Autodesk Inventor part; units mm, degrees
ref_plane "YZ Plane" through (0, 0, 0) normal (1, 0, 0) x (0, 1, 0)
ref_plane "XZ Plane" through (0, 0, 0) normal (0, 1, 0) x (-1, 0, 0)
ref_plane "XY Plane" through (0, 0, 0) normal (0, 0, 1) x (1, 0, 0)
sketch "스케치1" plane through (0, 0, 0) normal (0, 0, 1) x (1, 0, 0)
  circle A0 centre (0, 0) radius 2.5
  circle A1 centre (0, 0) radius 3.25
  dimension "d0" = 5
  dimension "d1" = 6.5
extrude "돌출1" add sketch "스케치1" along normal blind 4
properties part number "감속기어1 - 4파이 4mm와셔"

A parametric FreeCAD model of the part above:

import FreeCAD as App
import Part
import Sketcher
from FreeCAD import Vector
Q = App.Units.Quantity

doc = App.newDocument("Part")
body = doc.addObject("PartDesign::Body", "Body")

# Sketch on XY plane
sketch1 = doc.addObject("Sketcher::SketchObject", "Sketch")
body.addObject(sketch1)
sketch1.AttachmentSupport = (doc.XY_Plane, [""])
sketch1.MapMode = "FlatFace"
sketch1.addGeometry(Part.Circle(Vector(0, 0, 0), Vector(0, 0, 1), 3.25), False)
sketch1.addGeometry(Part.Circle(Vector(0, 0, 0), Vector(0, 0, 1), 2.5), False)
sketch1.addConstraint(Sketcher.Constraint("Coincident", 0, 3, -1, 1))
sketch1.addConstraint(Sketcher.Constraint("Coincident", 1, 3, -1, 1))
sketch1.addConstraint(Sketcher.Constraint("Diameter", 1, Q("5 mm")))
sketch1.addConstraint(Sketcher.Constraint("Diameter", 0, Q("6.5 mm")))
pad1 = doc.addObject("PartDesign::Pad", "Pad")
body.addObject(pad1)
pad1.Profile = sketch1
pad1.Length = 4

doc.recompute()
